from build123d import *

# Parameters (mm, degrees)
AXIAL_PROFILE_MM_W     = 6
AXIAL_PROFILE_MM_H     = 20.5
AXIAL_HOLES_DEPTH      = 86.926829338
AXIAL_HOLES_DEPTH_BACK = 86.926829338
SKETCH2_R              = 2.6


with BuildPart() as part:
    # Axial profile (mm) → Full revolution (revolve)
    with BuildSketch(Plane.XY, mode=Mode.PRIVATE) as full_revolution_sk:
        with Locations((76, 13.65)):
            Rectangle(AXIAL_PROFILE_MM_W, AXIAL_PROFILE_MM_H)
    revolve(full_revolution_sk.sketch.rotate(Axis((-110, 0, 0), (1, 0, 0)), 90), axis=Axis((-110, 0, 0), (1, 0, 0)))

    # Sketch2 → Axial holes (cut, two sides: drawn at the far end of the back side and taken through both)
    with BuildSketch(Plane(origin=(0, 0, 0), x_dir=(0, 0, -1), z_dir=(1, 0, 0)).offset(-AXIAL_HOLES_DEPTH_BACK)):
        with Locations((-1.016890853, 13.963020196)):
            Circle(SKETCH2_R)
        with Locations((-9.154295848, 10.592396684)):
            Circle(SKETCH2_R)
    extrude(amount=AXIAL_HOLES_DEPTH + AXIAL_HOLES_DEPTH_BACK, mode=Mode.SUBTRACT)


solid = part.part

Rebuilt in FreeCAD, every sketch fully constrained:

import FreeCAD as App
import Part
import Sketcher

V = App.Vector
Q = App.Units.Quantity

doc = App.newDocument("Part")
params = doc.addObject("Spreadsheet::Sheet", "Params")
for row, (alias, value) in enumerate([
    ("sketch1_width", "6 mm"),
    ("sketch1_height", "20.5 mm"),
    ("revolution_angle", "360 deg"),
    ("sketch2_diameter", "5.2 mm"),
], start=1):
    params.set(f"A{row}", alias)
    params.set(f"B{row}", "=" + value)
    params.setAlias(f"B{row}", alias)

body = doc.addObject("PartDesign::Body", "Body")

sketch1 = body.newObject("Sketcher::SketchObject", "Sketch")
sketch1.AttachmentSupport = (doc.getObject("XY_Plane"), [""])
sketch1.MapMode = "FlatFace"
sketch1.addGeometry(Part.LineSegment(V(73, 24, 0), V(73, 3, 0)), False)
sketch1.addGeometry(Part.LineSegment(V(73, 3, 0), V(79, 3, 0)), False)
sketch1.addGeometry(Part.LineSegment(V(79, 3, 0), V(79, 24, 0)), False)
sketch1.addGeometry(Part.LineSegment(V(79, 24, 0), V(73, 24, 0)), False)
sketch1.addConstraint(Sketcher.Constraint("Coincident", 0, 2, 1, 1))
sketch1.addConstraint(Sketcher.Constraint("Coincident", 1, 2, 2, 1))
sketch1.addConstraint(Sketcher.Constraint("Coincident", 2, 2, 3, 1))
sketch1.addConstraint(Sketcher.Constraint("Coincident", 3, 2, 0, 1))
sketch1.addConstraint(Sketcher.Constraint("Vertical", 0))
sketch1.addConstraint(Sketcher.Constraint("Horizontal", 1))
sketch1.addConstraint(Sketcher.Constraint("Vertical", 2))
sketch1.addConstraint(Sketcher.Constraint("Horizontal", 3))
sketch1.addConstraint(Sketcher.Constraint("DistanceX", 1, 1, 1, 2, Q("6 mm")))
sketch1.addConstraint(Sketcher.Constraint("DistanceY", 0, 2, 0, 1, Q("20.5 mm")))
sketch1.addConstraint(Sketcher.Constraint("DistanceX", -1, 1, 0, 2, Q("73 mm")))
sketch1.addConstraint(Sketcher.Constraint("DistanceY", -1, 1, 0, 2, Q("3.4 mm")))
sketch1.setExpression("Constraints[8]", "Params.sketch1_width")
sketch1.setExpression("Constraints[9]", "Params.sketch1_height")
revolution = body.newObject("PartDesign::Revolution", "Revolution")
revolution.Profile = sketch1
revolution.ReferenceAxis = (sketch1, ["H_Axis"])
revolution.setExpression("Angle", "Params.revolution_angle")

sketch2 = body.newObject("Sketcher::SketchObject", "Sketch001")
sketch2.AttachmentSupport = (doc.getObject("YZ_Plane"), [""])
sketch2.MapMode = "FlatFace"
sketch2.addGeometry(Part.Circle(V(14, 1, 0), V(0, 0, 1), 2.6), False)
sketch2.addGeometry(Part.Circle(V(10.6, 9.2, 0), V(0, 0, 1), 2.6), False)
sketch2.addConstraint(Sketcher.Constraint("Equal", 0, 1))
sketch2.addConstraint(Sketcher.Constraint("Diameter", 0, Q("5.2 mm")))
sketch2.addConstraint(Sketcher.Constraint("DistanceX", -1, 1, 0, 3, Q("13.96302 mm")))
sketch2.addConstraint(Sketcher.Constraint("DistanceY", -1, 1, 0, 3, Q("1.016891 mm")))
sketch2.addConstraint(Sketcher.Constraint("DistanceX", -1, 1, 1, 3, Q("10.592397 mm")))
sketch2.addConstraint(Sketcher.Constraint("DistanceY", -1, 1, 1, 3, Q("9.154296 mm")))
sketch2.setExpression("Constraints[1]", "Params.sketch2_diameter")
pocket1 = body.newObject("PartDesign::Pocket", "Pocket")
pocket1.Profile = sketch2
pocket1.Type = "ThroughAll"
pocket1.Midplane = True

doc.recompute()
